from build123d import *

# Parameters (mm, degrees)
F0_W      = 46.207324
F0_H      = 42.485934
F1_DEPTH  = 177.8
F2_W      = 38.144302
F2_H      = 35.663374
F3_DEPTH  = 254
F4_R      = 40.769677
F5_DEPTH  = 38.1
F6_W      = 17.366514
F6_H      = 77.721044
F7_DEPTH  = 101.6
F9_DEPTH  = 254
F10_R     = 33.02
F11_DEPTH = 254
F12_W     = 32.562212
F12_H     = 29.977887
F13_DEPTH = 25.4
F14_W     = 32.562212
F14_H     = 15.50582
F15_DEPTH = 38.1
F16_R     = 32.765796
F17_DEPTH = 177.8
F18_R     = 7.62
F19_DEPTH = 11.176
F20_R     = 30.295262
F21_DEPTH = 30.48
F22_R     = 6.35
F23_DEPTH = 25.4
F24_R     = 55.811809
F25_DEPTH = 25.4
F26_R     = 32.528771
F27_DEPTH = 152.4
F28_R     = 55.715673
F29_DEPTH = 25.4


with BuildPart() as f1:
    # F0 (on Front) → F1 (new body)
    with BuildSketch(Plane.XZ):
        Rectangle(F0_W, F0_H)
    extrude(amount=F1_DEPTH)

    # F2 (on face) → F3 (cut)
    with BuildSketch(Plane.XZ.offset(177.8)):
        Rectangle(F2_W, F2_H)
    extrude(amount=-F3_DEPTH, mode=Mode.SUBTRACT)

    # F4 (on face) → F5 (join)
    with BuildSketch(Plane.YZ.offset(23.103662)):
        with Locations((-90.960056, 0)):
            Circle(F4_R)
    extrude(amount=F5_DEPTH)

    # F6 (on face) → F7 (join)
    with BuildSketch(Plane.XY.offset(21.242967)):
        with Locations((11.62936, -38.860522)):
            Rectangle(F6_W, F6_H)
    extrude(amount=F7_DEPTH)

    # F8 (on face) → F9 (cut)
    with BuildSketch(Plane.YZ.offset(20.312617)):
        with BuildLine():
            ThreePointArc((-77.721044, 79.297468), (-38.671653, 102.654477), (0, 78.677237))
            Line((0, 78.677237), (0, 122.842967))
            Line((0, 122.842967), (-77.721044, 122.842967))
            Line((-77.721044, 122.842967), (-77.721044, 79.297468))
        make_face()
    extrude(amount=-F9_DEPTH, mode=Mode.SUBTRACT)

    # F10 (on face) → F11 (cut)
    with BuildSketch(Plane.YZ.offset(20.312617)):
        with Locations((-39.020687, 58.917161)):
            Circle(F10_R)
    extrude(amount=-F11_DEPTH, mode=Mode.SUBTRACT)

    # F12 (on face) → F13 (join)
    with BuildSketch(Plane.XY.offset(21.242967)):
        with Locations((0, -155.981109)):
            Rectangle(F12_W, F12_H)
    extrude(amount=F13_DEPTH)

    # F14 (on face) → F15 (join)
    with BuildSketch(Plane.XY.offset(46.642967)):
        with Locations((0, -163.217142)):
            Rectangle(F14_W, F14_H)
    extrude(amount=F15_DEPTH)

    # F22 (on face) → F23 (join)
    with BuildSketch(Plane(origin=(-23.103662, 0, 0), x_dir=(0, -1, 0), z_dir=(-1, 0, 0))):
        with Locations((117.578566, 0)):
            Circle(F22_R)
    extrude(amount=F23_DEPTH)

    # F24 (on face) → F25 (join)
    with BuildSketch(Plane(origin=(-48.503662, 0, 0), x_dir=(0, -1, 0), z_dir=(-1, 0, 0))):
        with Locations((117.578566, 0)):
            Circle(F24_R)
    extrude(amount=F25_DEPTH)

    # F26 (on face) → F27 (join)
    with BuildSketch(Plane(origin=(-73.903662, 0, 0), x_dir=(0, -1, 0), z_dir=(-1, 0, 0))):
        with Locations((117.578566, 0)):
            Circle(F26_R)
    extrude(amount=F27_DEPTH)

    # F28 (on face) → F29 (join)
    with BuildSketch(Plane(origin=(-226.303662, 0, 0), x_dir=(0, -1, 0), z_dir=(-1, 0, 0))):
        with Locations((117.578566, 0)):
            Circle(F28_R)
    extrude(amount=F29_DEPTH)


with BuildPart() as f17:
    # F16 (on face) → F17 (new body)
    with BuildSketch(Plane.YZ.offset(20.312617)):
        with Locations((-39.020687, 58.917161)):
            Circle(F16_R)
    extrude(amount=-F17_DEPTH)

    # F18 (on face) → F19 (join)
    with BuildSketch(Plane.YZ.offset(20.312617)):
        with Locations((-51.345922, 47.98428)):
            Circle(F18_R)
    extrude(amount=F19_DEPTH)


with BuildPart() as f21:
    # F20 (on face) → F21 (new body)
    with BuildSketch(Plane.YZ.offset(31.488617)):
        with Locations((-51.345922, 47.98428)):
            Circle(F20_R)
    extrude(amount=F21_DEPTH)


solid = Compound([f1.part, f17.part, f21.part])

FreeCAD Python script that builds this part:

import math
import FreeCAD as App
import Part
import Sketcher
from FreeCAD import Vector
Q = App.Units.Quantity

doc = App.newDocument("Part")
body = doc.addObject("PartDesign::Body", "Body")

# Sketch on XZ plane
sketch1 = body.newObject("Sketcher::SketchObject", "Sketch")
sketch1.AttachmentSupport = (doc.getObject("XZ_Plane"), [""])
sketch1.MapMode = "FlatFace"
sketch1.addGeometry(Part.LineSegment(Vector(-23, 21, 0), Vector(-23, -21, 0)), False)
sketch1.addGeometry(Part.LineSegment(Vector(-23, -21, 0), Vector(23, -21, 0)), False)
sketch1.addGeometry(Part.LineSegment(Vector(23, -21, 0), Vector(23, 21, 0)), False)
sketch1.addGeometry(Part.LineSegment(Vector(23, 21, 0), Vector(-23, 21, 0)), False)
sketch1.addConstraint(Sketcher.Constraint("Coincident", 0, 2, 1, 1))
sketch1.addConstraint(Sketcher.Constraint("Coincident", 1, 2, 2, 1))
sketch1.addConstraint(Sketcher.Constraint("Coincident", 2, 2, 3, 1))
sketch1.addConstraint(Sketcher.Constraint("Coincident", 3, 2, 0, 1))
sketch1.addConstraint(Sketcher.Constraint("Vertical", 0))
sketch1.addConstraint(Sketcher.Constraint("Horizontal", 1))
sketch1.addConstraint(Sketcher.Constraint("Vertical", 2))
sketch1.addConstraint(Sketcher.Constraint("Horizontal", 3))
sketch1.addConstraint(Sketcher.Constraint("Symmetric", 0, 2, 2, 2, -1, 1))
sketch1.addConstraint(Sketcher.Constraint("DistanceX", 1, 1, 1, 2, Q("46.207324 mm")))
sketch1.addConstraint(Sketcher.Constraint("DistanceY", 0, 2, 0, 1, Q("42.485934 mm")))
pad1 = body.newObject("PartDesign::Pad", "Pad")
pad1.Profile = sketch1
pad1.Length = Q("7 in")

# Sketch on XZ plane
sketch2 = body.newObject("Sketcher::SketchObject", "Sketch001")
sketch2.AttachmentSupport = (doc.getObject("XZ_Plane"), [""])
sketch2.MapMode = "FlatFace"
sketch2.AttachmentOffset = App.Placement(Vector(0, 0, 7 * 25.4), App.Rotation())
sketch2.addGeometry(Part.LineSegment(Vector(-19, 18, 0), Vector(-19, -18, 0)), False)
sketch2.addGeometry(Part.LineSegment(Vector(-19, -18, 0), Vector(19, -18, 0)), False)
sketch2.addGeometry(Part.LineSegment(Vector(19, -18, 0), Vector(19, 18, 0)), False)
sketch2.addGeometry(Part.LineSegment(Vector(19, 18, 0), Vector(-19, 18, 0)), False)
sketch2.addConstraint(Sketcher.Constraint("Coincident", 0, 2, 1, 1))
sketch2.addConstraint(Sketcher.Constraint("Coincident", 1, 2, 2, 1))
sketch2.addConstraint(Sketcher.Constraint("Coincident", 2, 2, 3, 1))
sketch2.addConstraint(Sketcher.Constraint("Coincident", 3, 2, 0, 1))
sketch2.addConstraint(Sketcher.Constraint("Vertical", 0))
sketch2.addConstraint(Sketcher.Constraint("Horizontal", 1))
sketch2.addConstraint(Sketcher.Constraint("Vertical", 2))
sketch2.addConstraint(Sketcher.Constraint("Horizontal", 3))
sketch2.addConstraint(Sketcher.Constraint("Symmetric", 0, 2, 2, 2, -1, 1))
sketch2.addConstraint(Sketcher.Constraint("DistanceX", 1, 1, 1, 2, Q("38.144302 mm")))
sketch2.addConstraint(Sketcher.Constraint("DistanceY", 0, 2, 0, 1, Q("35.663374 mm")))
pocket1 = body.newObject("PartDesign::Pocket", "Pocket")
pocket1.Profile = sketch2
pocket1.Length = Q("10 in")

# Sketch on YZ plane
sketch3 = body.newObject("Sketcher::SketchObject", "Sketch002")
sketch3.AttachmentSupport = (doc.getObject("YZ_Plane"), [""])
sketch3.MapMode = "FlatFace"
sketch3.AttachmentOffset = App.Placement(Vector(0, 0, 23.103662), App.Rotation())
sketch3.addGeometry(Part.Circle(Vector(-91, 0, 0), Vector(0, 0, 1), 41), False)
sketch3.addConstraint(Sketcher.Constraint("PointOnObject", 0, 3, -1))
sketch3.addConstraint(Sketcher.Constraint("Diameter", 0, Q("81.539354 mm")))
sketch3.addConstraint(Sketcher.Constraint("DistanceX", 0, 3, -1, 1, Q("90.960056 mm")))
pad2 = body.newObject("PartDesign::Pad", "Pad001")
pad2.Profile = sketch3
pad2.Length = Q("1.5 in")

# Sketch on XY plane
sketch4 = body.newObject("Sketcher::SketchObject", "Sketch003")
sketch4.AttachmentSupport = (doc.getObject("XY_Plane"), [""])
sketch4.MapMode = "FlatFace"
sketch4.AttachmentOffset = App.Placement(Vector(0, 0, 21.242967), App.Rotation())
sketch4.addGeometry(Part.LineSegment(Vector(3, 0, 0), Vector(3, -78, 0)), False)
sketch4.addGeometry(Part.LineSegment(Vector(3, -78, 0), Vector(20, -78, 0)), False)
sketch4.addGeometry(Part.LineSegment(Vector(20, -78, 0), Vector(20, 0, 0)), False)
sketch4.addGeometry(Part.LineSegment(Vector(20, 0, 0), Vector(3, 0, 0)), False)
sketch4.addConstraint(Sketcher.Constraint("Coincident", 0, 2, 1, 1))
sketch4.addConstraint(Sketcher.Constraint("Coincident", 1, 2, 2, 1))
sketch4.addConstraint(Sketcher.Constraint("Coincident", 2, 2, 3, 1))
sketch4.addConstraint(Sketcher.Constraint("Coincident", 3, 2, 0, 1))
sketch4.addConstraint(Sketcher.Constraint("Vertical", 0))
sketch4.addConstraint(Sketcher.Constraint("Horizontal", 1))
sketch4.addConstraint(Sketcher.Constraint("Vertical", 2))
sketch4.addConstraint(Sketcher.Constraint("Horizontal", 3))
sketch4.addConstraint(Sketcher.Constraint("PointOnObject", 2, 2, -1))
sketch4.addConstraint(Sketcher.Constraint("DistanceX", 1, 1, 1, 2, Q("17.366514 mm")))
sketch4.addConstraint(Sketcher.Constraint("DistanceY", 0, 2, 0, 1, Q("77.721044 mm")))
sketch4.addConstraint(Sketcher.Constraint("DistanceX", -1, 1, 0, 2, Q("2.946103 mm")))
pad3 = body.newObject("PartDesign::Pad", "Pad002")
pad3.Profile = sketch4
pad3.Length = Q("4 in")

# Sketch on YZ plane
sketch5 = body.newObject("Sketcher::SketchObject", "Sketch004")
sketch5.AttachmentSupport = (doc.getObject("YZ_Plane"), [""])
sketch5.MapMode = "FlatFace"
sketch5.AttachmentOffset = App.Placement(Vector(0, 0, 20.312617), App.Rotation())
sketch5.addGeometry(Part.ArcOfCircle(Part.Circle(Vector(-39, 59, 0), Vector(0, 0, 1), 44), math.radians(27), math.radians(152)), False)
sketch5.addGeometry(Part.LineSegment(Vector(0, 79, 0), Vector(0, 123, 0)), False)
sketch5.addGeometry(Part.LineSegment(Vector(0, 123, 0), Vector(-78, 123, 0)), False)
sketch5.addGeometry(Part.LineSegment(Vector(-78, 123, 0), Vector(-78, 79, 0)), False)
sketch5.addConstraint(Sketcher.Constraint("Coincident", 0, 1, 1, 1))
sketch5.addConstraint(Sketcher.Constraint("Coincident", 1, 2, 2, 1))
sketch5.addConstraint(Sketcher.Constraint("Coincident", 2, 2, 3, 1))
sketch5.addConstraint(Sketcher.Constraint("Coincident", 3, 2, 0, 2))
sketch5.addConstraint(Sketcher.Constraint("Vertical", 1))
sketch5.addConstraint(Sketcher.Constraint("Horizontal", 2))
sketch5.addConstraint(Sketcher.Constraint("Vertical", 3))
sketch5.addConstraint(Sketcher.Constraint("PointOnObject", 0, 1, -2))
sketch5.addConstraint(Sketcher.Constraint("DistanceY", 3, 2, 3, 1, Q("43.545499 mm")))
sketch5.addConstraint(Sketcher.Constraint("Radius", 0, Q("43.738708 mm")))
sketch5.addConstraint(Sketcher.Constraint("DistanceY", 1, 1, 1, 2, Q("44.16573 mm")))
sketch5.addConstraint(Sketcher.Constraint("DistanceX", 2, 2, 2, 1, Q("77.721044 mm")))
sketch5.addConstraint(Sketcher.Constraint("DistanceY", -1, 1, 0, 3, Q("58.917162 mm")))
pocket2 = body.newObject("PartDesign::Pocket", "Pocket001")
pocket2.Profile = sketch5
pocket2.Length = Q("10 in")

# Sketch on YZ plane
sketch6 = body.newObject("Sketcher::SketchObject", "Sketch005")
sketch6.AttachmentSupport = (doc.getObject("YZ_Plane"), [""])
sketch6.MapMode = "FlatFace"
sketch6.AttachmentOffset = App.Placement(Vector(0, 0, 20.312617), App.Rotation())
sketch6.addGeometry(Part.Circle(Vector(-39, 59, 0), Vector(0, 0, 1), 33), False)
sketch6.addConstraint(Sketcher.Constraint("Diameter", 0, Q("2.6 in")))
sketch6.addConstraint(Sketcher.Constraint("DistanceY", -1, 1, 0, 3, Q("58.917161 mm")))
sketch6.addConstraint(Sketcher.Constraint("DistanceX", 0, 3, -1, 1, Q("39.020687 mm")))
pocket3 = body.newObject("PartDesign::Pocket", "Pocket002")
pocket3.Profile = sketch6
pocket3.Length = Q("10 in")

# Sketch on XY plane
sketch7 = body.newObject("Sketcher::SketchObject", "Sketch006")
sketch7.AttachmentSupport = (doc.getObject("XY_Plane"), [""])
sketch7.MapMode = "FlatFace"
sketch7.AttachmentOffset = App.Placement(Vector(0, 0, 21.242967), App.Rotation())
sketch7.addGeometry(Part.LineSegment(Vector(-16, -141, 0), Vector(-16, -171, 0)), False)
sketch7.addGeometry(Part.LineSegment(Vector(-16, -171, 0), Vector(16, -171, 0)), False)
sketch7.addGeometry(Part.LineSegment(Vector(16, -171, 0), Vector(16, -141, 0)), False)
sketch7.addGeometry(Part.LineSegment(Vector(16, -141, 0), Vector(-16, -141, 0)), False)
sketch7.addConstraint(Sketcher.Constraint("Coincident", 0, 2, 1, 1))
sketch7.addConstraint(Sketcher.Constraint("Coincident", 1, 2, 2, 1))
sketch7.addConstraint(Sketcher.Constraint("Coincident", 2, 2, 3, 1))
sketch7.addConstraint(Sketcher.Constraint("Coincident", 3, 2, 0, 1))
sketch7.addConstraint(Sketcher.Constraint("Vertical", 0))
sketch7.addConstraint(Sketcher.Constraint("Horizontal", 1))
sketch7.addConstraint(Sketcher.Constraint("Vertical", 2))
sketch7.addConstraint(Sketcher.Constraint("Horizontal", 3))
sketch7.addConstraint(Sketcher.Constraint("DistanceX", 1, 1, 1, 2, Q("32.562212 mm")))
sketch7.addConstraint(Sketcher.Constraint("DistanceY", 0, 2, 0, 1, Q("29.977887 mm")))
sketch7.addConstraint(Sketcher.Constraint("DistanceX", 0, 2, -1, 1, Q("16.281106 mm")))
sketch7.addConstraint(Sketcher.Constraint("DistanceY", 0, 2, -1, 1, Q("170.970053 mm")))
pad4 = body.newObject("PartDesign::Pad", "Pad003")
pad4.Profile = sketch7
pad4.Length = Q("1 in")

# Sketch on XY plane
sketch8 = body.newObject("Sketcher::SketchObject", "Sketch007")
sketch8.AttachmentSupport = (doc.getObject("XY_Plane"), [""])
sketch8.MapMode = "FlatFace"
sketch8.AttachmentOffset = App.Placement(Vector(0, 0, 46.642967), App.Rotation())
sketch8.addGeometry(Part.LineSegment(Vector(-16, -155, 0), Vector(-16, -171, 0)), False)
sketch8.addGeometry(Part.LineSegment(Vector(-16, -171, 0), Vector(16, -171, 0)), False)
sketch8.addGeometry(Part.LineSegment(Vector(16, -171, 0), Vector(16, -155, 0)), False)
sketch8.addGeometry(Part.LineSegment(Vector(16, -155, 0), Vector(-16, -155, 0)), False)
sketch8.addConstraint(Sketcher.Constraint("Coincident", 0, 2, 1, 1))
sketch8.addConstraint(Sketcher.Constraint("Coincident", 1, 2, 2, 1))
sketch8.addConstraint(Sketcher.Constraint("Coincident", 2, 2, 3, 1))
sketch8.addConstraint(Sketcher.Constraint("Coincident", 3, 2, 0, 1))
sketch8.addConstraint(Sketcher.Constraint("Vertical", 0))
sketch8.addConstraint(Sketcher.Constraint("Horizontal", 1))
sketch8.addConstraint(Sketcher.Constraint("Vertical", 2))
sketch8.addConstraint(Sketcher.Constraint("Horizontal", 3))
sketch8.addConstraint(Sketcher.Constraint("DistanceY", 0, 2, 0, 1, Q("15.50582 mm")))
sketch8.addConstraint(Sketcher.Constraint("DistanceX", 1, 1, 1, 2, Q("32.562212 mm")))
sketch8.addConstraint(Sketcher.Constraint("DistanceX", 0, 2, -1, 1, Q("16.281106 mm")))
sketch8.addConstraint(Sketcher.Constraint("DistanceY", 0, 2, -1, 1, Q("170.970052 mm")))
pad5 = body.newObject("PartDesign::Pad", "Pad004")
pad5.Profile = sketch8
pad5.Length = Q("1.5 in")

# Sketch on YZ plane
sketch9 = body.newObject("Sketcher::SketchObject", "Sketch008")
sketch9.AttachmentSupport = (doc.getObject("YZ_Plane"), [""])
sketch9.MapMode = "FlatFace"
sketch9.AttachmentOffset = App.Placement(Vector(0, 0, -23.103662), App.Rotation())
sketch9.addGeometry(Part.Circle(Vector(-118, 0, 0), Vector(0, 0, 1), 6), False)
sketch9.addConstraint(Sketcher.Constraint("PointOnObject", 0, 3, -1))
sketch9.addConstraint(Sketcher.Constraint("Diameter", 0, Q("0.5 in")))
sketch9.addConstraint(Sketcher.Constraint("DistanceX", 0, 3, -1, 1, Q("117.578566 mm")))
pad6 = body.newObject("PartDesign::Pad", "Pad005")
pad6.Profile = sketch9
pad6.Length = Q("1 in")
pad6.Reversed = True

# Sketch on YZ plane
sketch10 = body.newObject("Sketcher::SketchObject", "Sketch009")
sketch10.AttachmentSupport = (doc.getObject("YZ_Plane"), [""])
sketch10.MapMode = "FlatFace"
sketch10.AttachmentOffset = App.Placement(Vector(0, 0, -48.503662), App.Rotation())
sketch10.addGeometry(Part.Circle(Vector(-118, 0, 0), Vector(0, 0, 1), 56), False)
sketch10.addConstraint(Sketcher.Constraint("PointOnObject", 0, 3, -1))
sketch10.addConstraint(Sketcher.Constraint("Diameter", 0, Q("111.623618 mm")))
sketch10.addConstraint(Sketcher.Constraint("DistanceX", 0, 3, -1, 1, Q("117.578566 mm")))
pad7 = body.newObject("PartDesign::Pad", "Pad006")
pad7.Profile = sketch10
pad7.Length = Q("1 in")
pad7.Reversed = True

# Sketch on YZ plane
sketch11 = body.newObject("Sketcher::SketchObject", "Sketch010")
sketch11.AttachmentSupport = (doc.getObject("YZ_Plane"), [""])
sketch11.MapMode = "FlatFace"
sketch11.AttachmentOffset = App.Placement(Vector(0, 0, -73.903662), App.Rotation())
sketch11.addGeometry(Part.Circle(Vector(-118, 0, 0), Vector(0, 0, 1), 33), False)
sketch11.addConstraint(Sketcher.Constraint("PointOnObject", 0, 3, -1))
sketch11.addConstraint(Sketcher.Constraint("Diameter", 0, Q("65.057542 mm")))
sketch11.addConstraint(Sketcher.Constraint("DistanceX", 0, 3, -1, 1, Q("117.578566 mm")))
pad8 = body.newObject("PartDesign::Pad", "Pad007")
pad8.Profile = sketch11
pad8.Length = Q("6 in")
pad8.Reversed = True

# Sketch on YZ plane
sketch12 = body.newObject("Sketcher::SketchObject", "Sketch011")
sketch12.AttachmentSupport = (doc.getObject("YZ_Plane"), [""])
sketch12.MapMode = "FlatFace"
sketch12.AttachmentOffset = App.Placement(Vector(0, 0, -226.303662), App.Rotation())
sketch12.addGeometry(Part.Circle(Vector(-118, 0, 0), Vector(0, 0, 1), 56), False)
sketch12.addConstraint(Sketcher.Constraint("PointOnObject", 0, 3, -1))
sketch12.addConstraint(Sketcher.Constraint("Diameter", 0, Q("111.431346 mm")))
sketch12.addConstraint(Sketcher.Constraint("DistanceX", 0, 3, -1, 1, Q("117.578566 mm")))
pad9 = body.newObject("PartDesign::Pad", "Pad008")
pad9.Profile = sketch12
pad9.Length = Q("1 in")
pad9.Reversed = True
body2 = doc.addObject("PartDesign::Body", "Body001")

# Sketch on YZ plane
sketch13 = body2.newObject("Sketcher::SketchObject", "Sketch012")
sketch13.AttachmentSupport = (doc.getObject("YZ_Plane001"), [""])
sketch13.MapMode = "FlatFace"
sketch13.AttachmentOffset = App.Placement(Vector(0, 0, 20.312617), App.Rotation())
sketch13.addGeometry(Part.Circle(Vector(-39, 59, 0), Vector(0, 0, 1), 33), False)
sketch13.addConstraint(Sketcher.Constraint("Diameter", 0, Q("65.531592 mm")))
sketch13.addConstraint(Sketcher.Constraint("DistanceY", -1, 1, 0, 3, Q("58.917161 mm")))
sketch13.addConstraint(Sketcher.Constraint("DistanceX", 0, 3, -1, 1, Q("39.020687 mm")))
pad10 = body2.newObject("PartDesign::Pad", "Pad009")
pad10.Profile = sketch13
pad10.Length = Q("7 in")
pad10.Reversed = True

# Sketch on YZ plane
sketch14 = body2.newObject("Sketcher::SketchObject", "Sketch013")
sketch14.AttachmentSupport = (doc.getObject("YZ_Plane001"), [""])
sketch14.MapMode = "FlatFace"
sketch14.AttachmentOffset = App.Placement(Vector(0, 0, 20.312617), App.Rotation())
sketch14.addGeometry(Part.Circle(Vector(-51, 48, 0), Vector(0, 0, 1), 8), False)
sketch14.addConstraint(Sketcher.Constraint("Diameter", 0, Q("0.6 in")))
sketch14.addConstraint(Sketcher.Constraint("DistanceY", -1, 1, 0, 3, Q("47.98428 mm")))
sketch14.addConstraint(Sketcher.Constraint("DistanceX", 0, 3, -1, 1, Q("51.345922 mm")))
pad11 = body2.newObject("PartDesign::Pad", "Pad010")
pad11.Profile = sketch14
pad11.Length = Q("0.44 in")
body3 = doc.addObject("PartDesign::Body", "Body002")

# Sketch on YZ plane
sketch15 = body3.newObject("Sketcher::SketchObject", "Sketch014")
sketch15.AttachmentSupport = (doc.getObject("YZ_Plane002"), [""])
sketch15.MapMode = "FlatFace"
sketch15.AttachmentOffset = App.Placement(Vector(0, 0, 31.488617), App.Rotation())
sketch15.addGeometry(Part.Circle(Vector(-51, 48, 0), Vector(0, 0, 1), 30), False)
sketch15.addConstraint(Sketcher.Constraint("Diameter", 0, Q("60.590524 mm")))
sketch15.addConstraint(Sketcher.Constraint("DistanceY", -1, 1, 0, 3, Q("47.98428 mm")))
sketch15.addConstraint(Sketcher.Constraint("DistanceX", 0, 3, -1, 1, Q("51.345922 mm")))
pad12 = body3.newObject("PartDesign::Pad", "Pad011")
pad12.Profile = sketch15
pad12.Length = Q("1.2 in")

doc.recompute()
